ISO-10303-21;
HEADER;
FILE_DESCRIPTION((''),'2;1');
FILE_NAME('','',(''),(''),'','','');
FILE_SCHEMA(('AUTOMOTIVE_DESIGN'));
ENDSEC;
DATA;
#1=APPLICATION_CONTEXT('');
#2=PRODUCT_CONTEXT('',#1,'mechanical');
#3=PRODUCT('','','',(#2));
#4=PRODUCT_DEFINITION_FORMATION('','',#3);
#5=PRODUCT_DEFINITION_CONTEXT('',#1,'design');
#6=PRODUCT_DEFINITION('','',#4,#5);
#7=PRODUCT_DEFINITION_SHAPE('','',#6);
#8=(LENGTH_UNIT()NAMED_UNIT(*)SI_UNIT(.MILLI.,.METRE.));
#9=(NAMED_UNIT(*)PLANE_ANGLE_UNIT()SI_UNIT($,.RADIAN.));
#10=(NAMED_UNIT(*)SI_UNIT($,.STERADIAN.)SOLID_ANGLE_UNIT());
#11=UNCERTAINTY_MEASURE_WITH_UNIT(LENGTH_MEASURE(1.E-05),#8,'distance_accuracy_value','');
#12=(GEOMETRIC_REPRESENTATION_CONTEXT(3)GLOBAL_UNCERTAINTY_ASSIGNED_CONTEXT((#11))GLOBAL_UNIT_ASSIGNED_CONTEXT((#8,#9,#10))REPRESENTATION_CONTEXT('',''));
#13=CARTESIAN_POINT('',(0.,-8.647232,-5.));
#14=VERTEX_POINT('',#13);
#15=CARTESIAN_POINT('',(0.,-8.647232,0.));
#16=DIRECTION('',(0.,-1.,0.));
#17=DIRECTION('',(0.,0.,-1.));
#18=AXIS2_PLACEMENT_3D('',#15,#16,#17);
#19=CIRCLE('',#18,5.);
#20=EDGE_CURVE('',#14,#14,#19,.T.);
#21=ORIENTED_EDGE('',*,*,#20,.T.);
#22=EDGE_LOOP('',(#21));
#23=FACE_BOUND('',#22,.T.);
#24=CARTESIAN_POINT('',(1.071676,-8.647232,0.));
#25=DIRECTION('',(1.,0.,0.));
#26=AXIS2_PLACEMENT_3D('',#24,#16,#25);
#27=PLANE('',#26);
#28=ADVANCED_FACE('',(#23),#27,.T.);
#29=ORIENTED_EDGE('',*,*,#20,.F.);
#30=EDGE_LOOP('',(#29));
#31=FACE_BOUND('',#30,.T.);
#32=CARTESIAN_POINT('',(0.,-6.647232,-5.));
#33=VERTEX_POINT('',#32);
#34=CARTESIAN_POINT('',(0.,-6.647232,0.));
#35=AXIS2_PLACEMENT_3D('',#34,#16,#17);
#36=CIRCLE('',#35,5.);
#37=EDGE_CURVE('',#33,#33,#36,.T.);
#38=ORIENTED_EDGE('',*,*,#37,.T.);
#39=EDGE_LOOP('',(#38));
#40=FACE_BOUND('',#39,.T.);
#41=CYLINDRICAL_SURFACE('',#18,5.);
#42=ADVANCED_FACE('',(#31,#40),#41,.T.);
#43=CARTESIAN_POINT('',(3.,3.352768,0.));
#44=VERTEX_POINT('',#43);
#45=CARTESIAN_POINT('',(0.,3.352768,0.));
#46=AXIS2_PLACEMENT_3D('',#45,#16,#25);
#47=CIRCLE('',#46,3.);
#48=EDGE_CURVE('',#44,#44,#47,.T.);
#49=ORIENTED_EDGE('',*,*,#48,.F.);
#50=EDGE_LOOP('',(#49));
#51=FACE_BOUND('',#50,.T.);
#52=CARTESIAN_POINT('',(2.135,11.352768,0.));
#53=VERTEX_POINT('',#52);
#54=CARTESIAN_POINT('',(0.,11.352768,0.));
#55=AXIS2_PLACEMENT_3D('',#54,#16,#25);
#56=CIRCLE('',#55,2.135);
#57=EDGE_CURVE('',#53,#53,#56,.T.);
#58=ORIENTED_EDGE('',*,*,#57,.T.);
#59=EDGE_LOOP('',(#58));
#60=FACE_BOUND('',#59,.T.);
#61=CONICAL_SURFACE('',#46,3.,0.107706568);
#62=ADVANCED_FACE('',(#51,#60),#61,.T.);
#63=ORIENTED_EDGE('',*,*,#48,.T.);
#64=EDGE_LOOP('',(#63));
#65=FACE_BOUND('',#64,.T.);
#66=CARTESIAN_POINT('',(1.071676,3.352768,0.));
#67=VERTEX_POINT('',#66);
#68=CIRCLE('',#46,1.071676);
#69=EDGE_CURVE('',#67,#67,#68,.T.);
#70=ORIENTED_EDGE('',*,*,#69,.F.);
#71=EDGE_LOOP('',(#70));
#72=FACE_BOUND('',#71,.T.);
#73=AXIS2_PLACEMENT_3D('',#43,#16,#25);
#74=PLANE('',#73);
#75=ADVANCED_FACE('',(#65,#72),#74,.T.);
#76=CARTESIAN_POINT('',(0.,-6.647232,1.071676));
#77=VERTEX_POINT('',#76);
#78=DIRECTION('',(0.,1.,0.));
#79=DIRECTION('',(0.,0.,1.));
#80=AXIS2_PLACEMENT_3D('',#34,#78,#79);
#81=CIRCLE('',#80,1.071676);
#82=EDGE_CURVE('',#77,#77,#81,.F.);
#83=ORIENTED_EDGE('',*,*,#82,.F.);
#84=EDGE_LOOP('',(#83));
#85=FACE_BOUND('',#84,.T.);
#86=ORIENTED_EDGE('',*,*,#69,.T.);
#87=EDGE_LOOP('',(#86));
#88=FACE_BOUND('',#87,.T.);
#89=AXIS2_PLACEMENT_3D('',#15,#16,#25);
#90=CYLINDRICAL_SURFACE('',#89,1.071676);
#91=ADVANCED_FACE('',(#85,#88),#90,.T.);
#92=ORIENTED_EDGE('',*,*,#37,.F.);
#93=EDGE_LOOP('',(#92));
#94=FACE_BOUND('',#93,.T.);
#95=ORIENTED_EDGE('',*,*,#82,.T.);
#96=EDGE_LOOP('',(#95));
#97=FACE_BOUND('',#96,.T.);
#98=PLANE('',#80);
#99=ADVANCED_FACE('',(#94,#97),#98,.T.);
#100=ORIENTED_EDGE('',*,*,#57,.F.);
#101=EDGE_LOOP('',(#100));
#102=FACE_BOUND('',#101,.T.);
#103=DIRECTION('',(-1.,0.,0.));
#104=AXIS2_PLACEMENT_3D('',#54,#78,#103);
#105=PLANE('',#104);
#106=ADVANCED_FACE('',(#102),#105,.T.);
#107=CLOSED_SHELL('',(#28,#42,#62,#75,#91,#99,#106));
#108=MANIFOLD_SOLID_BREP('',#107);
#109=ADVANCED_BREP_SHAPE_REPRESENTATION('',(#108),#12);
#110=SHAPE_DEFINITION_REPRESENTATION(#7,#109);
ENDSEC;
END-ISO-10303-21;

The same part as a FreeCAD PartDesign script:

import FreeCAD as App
import Part
import Sketcher

V = App.Vector
Q = App.Units.Quantity

doc = App.newDocument("Part")
body = doc.addObject("PartDesign::Body", "Body")

# Sketch on XY plane
sketch1 = body.newObject("Sketcher::SketchObject", "Sketch")
sketch1.AttachmentSupport = (doc.getObject("XY_Plane"), [""])
sketch1.MapMode = "FlatFace"
sketch1.addGeometry(Part.LineSegment(V(0, 11.4, 0), V(0, -8.6, 0)), False)
sketch1.addGeometry(Part.LineSegment(V(0, -8.6, 0), V(1.1, -8.6, 0)), False)
sketch1.addGeometry(Part.LineSegment(V(1.1, -8.6, 0), V(1.1, 3.4, 0)), False)
sketch1.addGeometry(Part.LineSegment(V(1.1, 3.4, 0), V(3, 3.4, 0)), False)
sketch1.addGeometry(Part.LineSegment(V(3, 3.4, 0), V(2.1, 11.4, 0)), False)
sketch1.addGeometry(Part.LineSegment(V(2.1, 11.4, 0), V(0, 11.4, 0)), False)
sketch1.addConstraint(Sketcher.Constraint("Coincident", 0, 2, 1, 1))
sketch1.addConstraint(Sketcher.Constraint("Coincident", 1, 2, 2, 1))
sketch1.addConstraint(Sketcher.Constraint("Coincident", 2, 2, 3, 1))
sketch1.addConstraint(Sketcher.Constraint("Coincident", 3, 2, 4, 1))
sketch1.addConstraint(Sketcher.Constraint("Coincident", 4, 2, 5, 1))
sketch1.addConstraint(Sketcher.Constraint("Coincident", 5, 2, 0, 1))
sketch1.addConstraint(Sketcher.Constraint("Vertical", 0))
sketch1.addConstraint(Sketcher.Constraint("Horizontal", 1))
sketch1.addConstraint(Sketcher.Constraint("Vertical", 2))
sketch1.addConstraint(Sketcher.Constraint("Horizontal", 3))
sketch1.addConstraint(Sketcher.Constraint("Horizontal", 5))
sketch1.addConstraint(Sketcher.Constraint("PointOnObject", 0, 2, -2))
sketch1.addConstraint(Sketcher.Constraint("DistanceY", 0, 2, 0, 1, Q("20 mm")))
sketch1.addConstraint(Sketcher.Constraint("DistanceY", 2, 1, 2, 2, Q("12 mm")))
sketch1.addConstraint(Sketcher.Constraint("DistanceX", -1, 1, 3, 2, Q("3 mm")))
sketch1.addConstraint(Sketcher.Constraint("DistanceX", 5, 2, 5, 1, Q("2.135 mm")))
sketch1.addConstraint(Sketcher.Constraint("DistanceX", 1, 1, 1, 2, Q("1.071676 mm")))
sketch1.addConstraint(Sketcher.Constraint("DistanceY", 0, 2, -1, 1, Q("8.647232 mm")))
revolution = body.newObject("PartDesign::Revolution", "Revolution")
revolution.Profile = sketch1
revolution.ReferenceAxis = (sketch1, ["V_Axis"])
revolution.Angle = 360

# Sketch on XY plane
sketch2 = body.newObject("Sketcher::SketchObject", "Sketch001")
sketch2.AttachmentSupport = (doc.getObject("XY_Plane"), [""])
sketch2.MapMode = "FlatFace"
sketch2.addGeometry(Part.LineSegment(V(0, -6.6, 0), V(0, -8.6, 0)), False)
sketch2.addGeometry(Part.LineSegment(V(0, -8.6, 0), V(5, -8.6, 0)), False)
sketch2.addGeometry(Part.LineSegment(V(5, -8.6, 0), V(5, -6.6, 0)), False)
sketch2.addGeometry(Part.LineSegment(V(5, -6.6, 0), V(0, -6.6, 0)), False)
sketch2.addConstraint(Sketcher.Constraint("Coincident", 0, 2, 1, 1))
sketch2.addConstraint(Sketcher.Constraint("Coincident", 1, 2, 2, 1))
sketch2.addConstraint(Sketcher.Constraint("Coincident", 2, 2, 3, 1))
sketch2.addConstraint(Sketcher.Constraint("Coincident", 3, 2, 0, 1))
sketch2.addConstraint(Sketcher.Constraint("Vertical", 0))
sketch2.addConstraint(Sketcher.Constraint("Horizontal", 1))
sketch2.addConstraint(Sketcher.Constraint("Vertical", 2))
sketch2.addConstraint(Sketcher.Constraint("Horizontal", 3))
sketch2.addConstraint(Sketcher.Constraint("PointOnObject", 0, 2, -2))
sketch2.addConstraint(Sketcher.Constraint("DistanceX", 1, 1, 1, 2, Q("5 mm")))
sketch2.addConstraint(Sketcher.Constraint("DistanceY", 0, 2, 0, 1, Q("2 mm")))
sketch2.addConstraint(Sketcher.Constraint("DistanceY", 0, 2, -1, 1, Q("8.647232 mm")))
revolution2 = body.newObject("PartDesign::Revolution", "Revolution001")
revolution2.Profile = sketch2
revolution2.ReferenceAxis = (sketch2, ["V_Axis"])
revolution2.Angle = 360

doc.recompute()
